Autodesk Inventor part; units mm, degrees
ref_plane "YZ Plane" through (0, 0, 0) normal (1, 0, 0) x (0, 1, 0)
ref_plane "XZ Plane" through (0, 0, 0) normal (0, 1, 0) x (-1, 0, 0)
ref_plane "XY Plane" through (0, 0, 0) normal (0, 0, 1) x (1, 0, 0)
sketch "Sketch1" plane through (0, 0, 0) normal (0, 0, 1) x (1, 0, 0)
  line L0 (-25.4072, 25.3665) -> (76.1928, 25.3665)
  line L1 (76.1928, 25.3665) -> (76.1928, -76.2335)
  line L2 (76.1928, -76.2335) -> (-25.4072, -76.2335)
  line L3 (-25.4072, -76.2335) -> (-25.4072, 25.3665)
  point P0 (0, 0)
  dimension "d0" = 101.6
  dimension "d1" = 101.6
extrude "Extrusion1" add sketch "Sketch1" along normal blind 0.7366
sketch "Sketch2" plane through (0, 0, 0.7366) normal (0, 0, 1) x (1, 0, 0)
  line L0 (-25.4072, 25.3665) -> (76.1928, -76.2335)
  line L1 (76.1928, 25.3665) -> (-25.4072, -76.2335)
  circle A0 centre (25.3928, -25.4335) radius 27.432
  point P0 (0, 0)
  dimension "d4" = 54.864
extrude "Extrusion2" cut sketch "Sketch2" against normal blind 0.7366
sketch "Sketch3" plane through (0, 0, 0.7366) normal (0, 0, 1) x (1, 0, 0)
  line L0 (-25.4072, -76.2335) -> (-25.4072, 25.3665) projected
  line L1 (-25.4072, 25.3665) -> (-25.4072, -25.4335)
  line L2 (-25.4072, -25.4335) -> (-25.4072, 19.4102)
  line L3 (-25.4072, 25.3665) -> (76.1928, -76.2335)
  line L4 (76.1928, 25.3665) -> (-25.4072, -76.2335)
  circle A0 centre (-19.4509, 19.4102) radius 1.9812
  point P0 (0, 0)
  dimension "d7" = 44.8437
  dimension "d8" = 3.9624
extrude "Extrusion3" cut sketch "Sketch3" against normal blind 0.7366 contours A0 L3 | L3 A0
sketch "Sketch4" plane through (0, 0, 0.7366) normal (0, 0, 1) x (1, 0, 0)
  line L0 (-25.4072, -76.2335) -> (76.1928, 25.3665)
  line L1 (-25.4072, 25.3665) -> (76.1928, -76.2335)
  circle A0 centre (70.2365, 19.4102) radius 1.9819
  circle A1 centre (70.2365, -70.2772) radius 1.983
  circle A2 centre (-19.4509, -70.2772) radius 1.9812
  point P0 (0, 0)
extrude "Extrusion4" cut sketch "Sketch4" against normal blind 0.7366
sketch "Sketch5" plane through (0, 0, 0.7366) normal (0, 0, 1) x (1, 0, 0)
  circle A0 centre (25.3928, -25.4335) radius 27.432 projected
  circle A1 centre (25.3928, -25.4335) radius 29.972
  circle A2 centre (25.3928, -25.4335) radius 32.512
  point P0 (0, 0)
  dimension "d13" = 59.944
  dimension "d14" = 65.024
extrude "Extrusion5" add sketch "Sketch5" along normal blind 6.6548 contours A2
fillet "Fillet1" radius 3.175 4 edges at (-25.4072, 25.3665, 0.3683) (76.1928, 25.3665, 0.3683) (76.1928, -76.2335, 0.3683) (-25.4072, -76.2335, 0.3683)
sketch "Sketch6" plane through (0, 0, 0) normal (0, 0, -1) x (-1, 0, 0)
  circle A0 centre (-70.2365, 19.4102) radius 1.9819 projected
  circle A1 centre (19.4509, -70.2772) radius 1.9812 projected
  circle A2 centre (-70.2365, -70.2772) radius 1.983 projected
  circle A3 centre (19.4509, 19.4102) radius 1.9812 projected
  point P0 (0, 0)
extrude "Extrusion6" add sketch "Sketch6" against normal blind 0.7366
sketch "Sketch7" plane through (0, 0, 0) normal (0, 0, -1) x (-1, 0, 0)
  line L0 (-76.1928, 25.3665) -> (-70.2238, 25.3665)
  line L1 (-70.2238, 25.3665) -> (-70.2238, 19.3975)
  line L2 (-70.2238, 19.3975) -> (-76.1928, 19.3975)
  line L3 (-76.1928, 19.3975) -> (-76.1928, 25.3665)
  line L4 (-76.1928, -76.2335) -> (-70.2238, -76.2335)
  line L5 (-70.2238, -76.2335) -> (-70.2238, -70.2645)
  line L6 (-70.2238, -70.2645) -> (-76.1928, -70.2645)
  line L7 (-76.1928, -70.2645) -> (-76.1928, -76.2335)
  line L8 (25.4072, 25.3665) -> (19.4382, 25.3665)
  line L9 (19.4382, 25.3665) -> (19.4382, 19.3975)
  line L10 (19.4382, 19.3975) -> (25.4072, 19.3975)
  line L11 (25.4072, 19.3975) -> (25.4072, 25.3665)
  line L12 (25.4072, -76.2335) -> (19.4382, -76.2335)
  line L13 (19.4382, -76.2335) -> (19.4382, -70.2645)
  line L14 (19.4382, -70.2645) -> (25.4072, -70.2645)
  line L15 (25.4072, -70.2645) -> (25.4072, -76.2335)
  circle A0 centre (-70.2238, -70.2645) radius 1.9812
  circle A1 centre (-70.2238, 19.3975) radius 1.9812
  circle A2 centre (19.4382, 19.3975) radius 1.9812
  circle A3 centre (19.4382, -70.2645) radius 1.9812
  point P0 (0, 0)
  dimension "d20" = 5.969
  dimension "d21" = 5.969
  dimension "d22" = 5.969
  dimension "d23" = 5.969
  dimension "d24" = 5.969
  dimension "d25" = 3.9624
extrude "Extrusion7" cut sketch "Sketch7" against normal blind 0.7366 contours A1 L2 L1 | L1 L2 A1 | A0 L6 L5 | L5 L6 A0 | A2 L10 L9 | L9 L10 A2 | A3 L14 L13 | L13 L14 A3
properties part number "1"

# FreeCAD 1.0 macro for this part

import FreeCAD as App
import Part
import Sketcher
Q = App.Units.Quantity


def edges_at(feature, points):
    """Names of the edges that pass closest to the given points."""
    edges = feature.Shape.Edges
    near = lambda p: min(range(len(edges)), key=lambda i: edges[i].distToShape(Part.Vertex(*p))[0])
    return sorted({f"Edge{near(p) + 1}" for p in points})

doc = App.newDocument("Part")
params = doc.addObject("Spreadsheet::Sheet", "Params")
for row, (alias, value) in enumerate([
    ("sketch1_width", "4 in"),
    ("pad1_length", "0.029 in"),
    ("sketch2_diameter", "2.16 in"),
    ("pocket1_length", "0.029 in"),
    ("sketch3_diameter", "0.156 in"),
    ("pocket2_length", "0.029 in"),
    ("sketch4_diameter", "0.156 in"),
    ("pocket3_length", "0.029 in"),
    ("sketch5_diameter", "2.56 in"),
    ("sketch5_diameter2", "2.36 in"),
    ("pad2_length", "0.262 in"),
    ("fillet_radius", "0.125 in"),
    ("sketch6_diameter", "0.156 in"),
    ("pad3_length", "0.029 in"),
    ("sketch7_diameter", "0.156 in"),
    ("pocket4_length", "0.029 in"),
], start=1):
    params.set(f"A{row}", alias)
    params.set(f"B{row}", "=" + value)
    params.setAlias(f"B{row}", alias)

body = doc.addObject("PartDesign::Body", "Body")

sketch1 = body.newObject("Sketcher::SketchObject", "Sketch")
sketch1.AttachmentSupport = (doc.getObject("XY_Plane"), [""])
sketch1.MapMode = "FlatFace"
sketch1.addGeometry(Part.LineSegment(App.Vector(76, 25, 0), App.Vector(-25, 25, 0)), False)
sketch1.addGeometry(Part.LineSegment(App.Vector(-25, 25, 0), App.Vector(-25, -76, 0)), False)
sketch1.addGeometry(Part.LineSegment(App.Vector(-25, -76, 0), App.Vector(76, -76, 0)), False)
sketch1.addGeometry(Part.LineSegment(App.Vector(76, -76, 0), App.Vector(76, 25, 0)), False)
sketch1.addConstraint(Sketcher.Constraint("Coincident", 0, 2, 1, 1))
sketch1.addConstraint(Sketcher.Constraint("Coincident", 1, 2, 2, 1))
sketch1.addConstraint(Sketcher.Constraint("Coincident", 2, 2, 3, 1))
sketch1.addConstraint(Sketcher.Constraint("Coincident", 3, 2, 0, 1))
sketch1.addConstraint(Sketcher.Constraint("Horizontal", 0))
sketch1.addConstraint(Sketcher.Constraint("Vertical", 1))
sketch1.addConstraint(Sketcher.Constraint("Horizontal", 2))
sketch1.addConstraint(Sketcher.Constraint("Vertical", 3))
sketch1.addConstraint(Sketcher.Constraint("Equal", 2, 1))
sketch1.addConstraint(Sketcher.Constraint("DistanceX", 0, 2, 0, 1, Q("4 in")))
sketch1.addConstraint(Sketcher.Constraint("DistanceX", 0, 2, -1, 1, 25.4072))
sketch1.addConstraint(Sketcher.Constraint("DistanceY", -1, 1, 0, 2, 25.3665))
sketch1.setExpression("Constraints[9]", "Params.sketch1_width")
pad1 = body.newObject("PartDesign::Pad", "Pad")
pad1.Profile = sketch1
pad1.setExpression("Length", "Params.pad1_length")

sketch2 = body.newObject("Sketcher::SketchObject", "Sketch001")
sketch2.AttachmentSupport = (doc.getObject("XY_Plane"), [""])
sketch2.MapMode = "FlatFace"
sketch2.AttachmentOffset = App.Placement(App.Vector(0, 0, 0.029 * 25.4), App.Rotation())
sketch2.addGeometry(Part.Circle(App.Vector(25, -25, 0), App.Vector(0, 0, 1), 27), False)
sketch2.addConstraint(Sketcher.Constraint("Diameter", 0, Q("2.16 in")))
sketch2.addConstraint(Sketcher.Constraint("DistanceX", -1, 1, 0, 3, 25.3928))
sketch2.addConstraint(Sketcher.Constraint("DistanceY", 0, 3, -1, 1, 25.4335))
sketch2.setExpression("Constraints[0]", "Params.sketch2_diameter")
pocket1 = body.newObject("PartDesign::Pocket", "Pocket")
pocket1.Profile = sketch2
pocket1.setExpression("Length", "Params.pocket1_length")

sketch3 = body.newObject("Sketcher::SketchObject", "Sketch002")
sketch3.AttachmentSupport = (doc.getObject("XY_Plane"), [""])
sketch3.MapMode = "FlatFace"
sketch3.AttachmentOffset = App.Placement(App.Vector(0, 0, 0.029 * 25.4), App.Rotation())
sketch3.addGeometry(Part.Circle(App.Vector(-19.5, 19.4, 0), App.Vector(0, 0, 1), 2), False)
sketch3.addConstraint(Sketcher.Constraint("Diameter", 0, Q("0.156 in")))
sketch3.addConstraint(Sketcher.Constraint("DistanceX", 0, 3, -1, 1, 19.451))
sketch3.addConstraint(Sketcher.Constraint("DistanceY", -1, 1, 0, 3, 19.4102))
sketch3.setExpression("Constraints[0]", "Params.sketch3_diameter")
pocket2 = body.newObject("PartDesign::Pocket", "Pocket001")
pocket2.Profile = sketch3
pocket2.setExpression("Length", "Params.pocket2_length")

sketch4 = body.newObject("Sketcher::SketchObject", "Sketch003")
sketch4.AttachmentSupport = (doc.getObject("XY_Plane"), [""])
sketch4.MapMode = "FlatFace"
sketch4.AttachmentOffset = App.Placement(App.Vector(0, 0, 0.029 * 25.4), App.Rotation())
sketch4.addGeometry(Part.Circle(App.Vector(-19.5, -70.3, 0), App.Vector(0, 0, 1), 2), False)
sketch4.addGeometry(Part.Circle(App.Vector(70.2, 19.4, 0), App.Vector(0, 0, 1), 2), False)
sketch4.addGeometry(Part.Circle(App.Vector(70.2, -70.3, 0), App.Vector(0, 0, 1), 2), False)
sketch4.addConstraint(Sketcher.Constraint("Horizontal", 0, 3, 2, 3))
sketch4.addConstraint(Sketcher.Constraint("Vertical", 1, 3, 2, 3))
sketch4.addConstraint(Sketcher.Constraint("Diameter", 0, Q("0.156 in")))
sketch4.addConstraint(Sketcher.Constraint("Diameter", 1, 3.9638))
sketch4.addConstraint(Sketcher.Constraint("Diameter", 2, 3.966))
sketch4.addConstraint(Sketcher.Constraint("DistanceX", 0, 3, 1, 3, Q("3.531 in")))
sketch4.addConstraint(Sketcher.Constraint("DistanceY", 0, 3, 1, 3, Q("3.531 in")))
sketch4.addConstraint(Sketcher.Constraint("DistanceX", 0, 3, -1, 1, 19.451))
sketch4.addConstraint(Sketcher.Constraint("DistanceY", 0, 3, -1, 1, 70.2772))
sketch4.setExpression("Constraints[2]", "Params.sketch4_diameter")
pocket3 = body.newObject("PartDesign::Pocket", "Pocket002")
pocket3.Profile = sketch4
pocket3.setExpression("Length", "Params.pocket3_length")

sketch5 = body.newObject("Sketcher::SketchObject", "Sketch004")
sketch5.AttachmentSupport = (doc.getObject("XY_Plane"), [""])
sketch5.MapMode = "FlatFace"
sketch5.AttachmentOffset = App.Placement(App.Vector(0, 0, 0.029 * 25.4), App.Rotation())
sketch5.addGeometry(Part.Circle(App.Vector(25, -25, 0), App.Vector(0, 0, 1), 33), False)
sketch5.addGeometry(Part.Circle(App.Vector(25, -25, 0), App.Vector(0, 0, 1), 30), False)
sketch5.addConstraint(Sketcher.Constraint("Coincident", 1, 3, 0, 3))
sketch5.addConstraint(Sketcher.Constraint("Diameter", 0, Q("2.56 in")))
sketch5.addConstraint(Sketcher.Constraint("Diameter", 1, Q("2.36 in")))
sketch5.addConstraint(Sketcher.Constraint("DistanceX", -1, 1, 0, 3, 25.3928))
sketch5.addConstraint(Sketcher.Constraint("DistanceY", 0, 3, -1, 1, 25.4335))
sketch5.setExpression("Constraints[1]", "Params.sketch5_diameter")
sketch5.setExpression("Constraints[2]", "Params.sketch5_diameter2")
pad2 = body.newObject("PartDesign::Pad", "Pad001")
pad2.Profile = sketch5
pad2.setExpression("Length", "Params.pad2_length")
doc.recompute()

fillet = body.newObject("PartDesign::Fillet", "Fillet")
fillet.Base = (pad2, edges_at(pad2, [
    (-25.407, 25.366, 0.368),
    (76.193, 25.366, 0.368),
    (76.193, -76.234, 0.368),
    (-25.407, -76.234, 0.368),
]))
fillet.setExpression("Radius", "Params.fillet_radius")

sketch6 = body.newObject("Sketcher::SketchObject", "Sketch005")
sketch6.AttachmentSupport = (doc.getObject("XY_Plane"), [""])
sketch6.MapMode = "FlatFace"
sketch6.addGeometry(Part.Circle(App.Vector(70.2, 19.4, 0), App.Vector(0, 0, 1), 2), False)
sketch6.addGeometry(Part.Circle(App.Vector(-19.5, -70.3, 0), App.Vector(0, 0, 1), 2), False)
sketch6.addGeometry(Part.Circle(App.Vector(70.2, -70.3, 0), App.Vector(0, 0, 1), 2), False)
sketch6.addGeometry(Part.Circle(App.Vector(-19.5, 19.4, 0), App.Vector(0, 0, 1), 2), False)
sketch6.addConstraint(Sketcher.Constraint("Equal", 1, 3))
sketch6.addConstraint(Sketcher.Constraint("Horizontal", 1, 3, 2, 3))
sketch6.addConstraint(Sketcher.Constraint("Horizontal", 0, 3, 3, 3))
sketch6.addConstraint(Sketcher.Constraint("Vertical", 0, 3, 2, 3))
sketch6.addConstraint(Sketcher.Constraint("Vertical", 1, 3, 3, 3))
sketch6.addConstraint(Sketcher.Constraint("Diameter", 1, Q("0.156 in")))
sketch6.addConstraint(Sketcher.Constraint("Diameter", 0, 3.9638))
sketch6.addConstraint(Sketcher.Constraint("Diameter", 2, 3.966))
sketch6.addConstraint(Sketcher.Constraint("DistanceX", 1, 3, 0, 3, Q("3.531 in")))
sketch6.addConstraint(Sketcher.Constraint("DistanceY", 1, 3, 0, 3, Q("3.531 in")))
sketch6.addConstraint(Sketcher.Constraint("DistanceX", -1, 1, 0, 3, 70.2365))
sketch6.addConstraint(Sketcher.Constraint("DistanceY", -1, 1, 0, 3, 19.4102))
sketch6.setExpression("Constraints[5]", "Params.sketch6_diameter")
pad3 = body.newObject("PartDesign::Pad", "Pad002")
pad3.Profile = sketch6
pad3.setExpression("Length", "Params.pad3_length")

sketch7 = body.newObject("Sketcher::SketchObject", "Sketch006")
sketch7.AttachmentSupport = (doc.getObject("XY_Plane"), [""])
sketch7.MapMode = "FlatFace"
sketch7.addGeometry(Part.Circle(App.Vector(70.2, 19.4, 0), App.Vector(0, 0, 1), 2), False)
sketch7.addGeometry(Part.Circle(App.Vector(70.2, -70.3, 0), App.Vector(0, 0, 1), 2), False)
sketch7.addGeometry(Part.Circle(App.Vector(-19.4, 19.4, 0), App.Vector(0, 0, 1), 2), False)
sketch7.addGeometry(Part.Circle(App.Vector(-19.4, -70.3, 0), App.Vector(0, 0, 1), 2), False)
sketch7.addConstraint(Sketcher.Constraint("Equal", 0, 1))
sketch7.addConstraint(Sketcher.Constraint("Equal", 1, 2))
sketch7.addConstraint(Sketcher.Constraint("Equal", 2, 3))
sketch7.addConstraint(Sketcher.Constraint("Horizontal", 0, 3, 2, 3))
sketch7.addConstraint(Sketcher.Constraint("Horizontal", 1, 3, 3, 3))
sketch7.addConstraint(Sketcher.Constraint("Vertical", 0, 3, 1, 3))
sketch7.addConstraint(Sketcher.Constraint("Vertical", 2, 3, 3, 3))
sketch7.addConstraint(Sketcher.Constraint("Diameter", 0, Q("0.156 in")))
sketch7.addConstraint(Sketcher.Constraint("DistanceY", 1, 3, 0, 3, Q("3.53 in")))
sketch7.addConstraint(Sketcher.Constraint("DistanceX", 2, 3, 0, 3, Q("3.53 in")))
sketch7.addConstraint(Sketcher.Constraint("DistanceX", -1, 1, 0, 3, 70.2238))
sketch7.addConstraint(Sketcher.Constraint("DistanceY", -1, 1, 0, 3, 19.3975))
sketch7.setExpression("Constraints[7]", "Params.sketch7_diameter")
pocket4 = body.newObject("PartDesign::Pocket", "Pocket003")
pocket4.Profile = sketch7
pocket4.setExpression("Length", "Params.pocket4_length")
pocket4.Reversed = True

doc.recompute()
